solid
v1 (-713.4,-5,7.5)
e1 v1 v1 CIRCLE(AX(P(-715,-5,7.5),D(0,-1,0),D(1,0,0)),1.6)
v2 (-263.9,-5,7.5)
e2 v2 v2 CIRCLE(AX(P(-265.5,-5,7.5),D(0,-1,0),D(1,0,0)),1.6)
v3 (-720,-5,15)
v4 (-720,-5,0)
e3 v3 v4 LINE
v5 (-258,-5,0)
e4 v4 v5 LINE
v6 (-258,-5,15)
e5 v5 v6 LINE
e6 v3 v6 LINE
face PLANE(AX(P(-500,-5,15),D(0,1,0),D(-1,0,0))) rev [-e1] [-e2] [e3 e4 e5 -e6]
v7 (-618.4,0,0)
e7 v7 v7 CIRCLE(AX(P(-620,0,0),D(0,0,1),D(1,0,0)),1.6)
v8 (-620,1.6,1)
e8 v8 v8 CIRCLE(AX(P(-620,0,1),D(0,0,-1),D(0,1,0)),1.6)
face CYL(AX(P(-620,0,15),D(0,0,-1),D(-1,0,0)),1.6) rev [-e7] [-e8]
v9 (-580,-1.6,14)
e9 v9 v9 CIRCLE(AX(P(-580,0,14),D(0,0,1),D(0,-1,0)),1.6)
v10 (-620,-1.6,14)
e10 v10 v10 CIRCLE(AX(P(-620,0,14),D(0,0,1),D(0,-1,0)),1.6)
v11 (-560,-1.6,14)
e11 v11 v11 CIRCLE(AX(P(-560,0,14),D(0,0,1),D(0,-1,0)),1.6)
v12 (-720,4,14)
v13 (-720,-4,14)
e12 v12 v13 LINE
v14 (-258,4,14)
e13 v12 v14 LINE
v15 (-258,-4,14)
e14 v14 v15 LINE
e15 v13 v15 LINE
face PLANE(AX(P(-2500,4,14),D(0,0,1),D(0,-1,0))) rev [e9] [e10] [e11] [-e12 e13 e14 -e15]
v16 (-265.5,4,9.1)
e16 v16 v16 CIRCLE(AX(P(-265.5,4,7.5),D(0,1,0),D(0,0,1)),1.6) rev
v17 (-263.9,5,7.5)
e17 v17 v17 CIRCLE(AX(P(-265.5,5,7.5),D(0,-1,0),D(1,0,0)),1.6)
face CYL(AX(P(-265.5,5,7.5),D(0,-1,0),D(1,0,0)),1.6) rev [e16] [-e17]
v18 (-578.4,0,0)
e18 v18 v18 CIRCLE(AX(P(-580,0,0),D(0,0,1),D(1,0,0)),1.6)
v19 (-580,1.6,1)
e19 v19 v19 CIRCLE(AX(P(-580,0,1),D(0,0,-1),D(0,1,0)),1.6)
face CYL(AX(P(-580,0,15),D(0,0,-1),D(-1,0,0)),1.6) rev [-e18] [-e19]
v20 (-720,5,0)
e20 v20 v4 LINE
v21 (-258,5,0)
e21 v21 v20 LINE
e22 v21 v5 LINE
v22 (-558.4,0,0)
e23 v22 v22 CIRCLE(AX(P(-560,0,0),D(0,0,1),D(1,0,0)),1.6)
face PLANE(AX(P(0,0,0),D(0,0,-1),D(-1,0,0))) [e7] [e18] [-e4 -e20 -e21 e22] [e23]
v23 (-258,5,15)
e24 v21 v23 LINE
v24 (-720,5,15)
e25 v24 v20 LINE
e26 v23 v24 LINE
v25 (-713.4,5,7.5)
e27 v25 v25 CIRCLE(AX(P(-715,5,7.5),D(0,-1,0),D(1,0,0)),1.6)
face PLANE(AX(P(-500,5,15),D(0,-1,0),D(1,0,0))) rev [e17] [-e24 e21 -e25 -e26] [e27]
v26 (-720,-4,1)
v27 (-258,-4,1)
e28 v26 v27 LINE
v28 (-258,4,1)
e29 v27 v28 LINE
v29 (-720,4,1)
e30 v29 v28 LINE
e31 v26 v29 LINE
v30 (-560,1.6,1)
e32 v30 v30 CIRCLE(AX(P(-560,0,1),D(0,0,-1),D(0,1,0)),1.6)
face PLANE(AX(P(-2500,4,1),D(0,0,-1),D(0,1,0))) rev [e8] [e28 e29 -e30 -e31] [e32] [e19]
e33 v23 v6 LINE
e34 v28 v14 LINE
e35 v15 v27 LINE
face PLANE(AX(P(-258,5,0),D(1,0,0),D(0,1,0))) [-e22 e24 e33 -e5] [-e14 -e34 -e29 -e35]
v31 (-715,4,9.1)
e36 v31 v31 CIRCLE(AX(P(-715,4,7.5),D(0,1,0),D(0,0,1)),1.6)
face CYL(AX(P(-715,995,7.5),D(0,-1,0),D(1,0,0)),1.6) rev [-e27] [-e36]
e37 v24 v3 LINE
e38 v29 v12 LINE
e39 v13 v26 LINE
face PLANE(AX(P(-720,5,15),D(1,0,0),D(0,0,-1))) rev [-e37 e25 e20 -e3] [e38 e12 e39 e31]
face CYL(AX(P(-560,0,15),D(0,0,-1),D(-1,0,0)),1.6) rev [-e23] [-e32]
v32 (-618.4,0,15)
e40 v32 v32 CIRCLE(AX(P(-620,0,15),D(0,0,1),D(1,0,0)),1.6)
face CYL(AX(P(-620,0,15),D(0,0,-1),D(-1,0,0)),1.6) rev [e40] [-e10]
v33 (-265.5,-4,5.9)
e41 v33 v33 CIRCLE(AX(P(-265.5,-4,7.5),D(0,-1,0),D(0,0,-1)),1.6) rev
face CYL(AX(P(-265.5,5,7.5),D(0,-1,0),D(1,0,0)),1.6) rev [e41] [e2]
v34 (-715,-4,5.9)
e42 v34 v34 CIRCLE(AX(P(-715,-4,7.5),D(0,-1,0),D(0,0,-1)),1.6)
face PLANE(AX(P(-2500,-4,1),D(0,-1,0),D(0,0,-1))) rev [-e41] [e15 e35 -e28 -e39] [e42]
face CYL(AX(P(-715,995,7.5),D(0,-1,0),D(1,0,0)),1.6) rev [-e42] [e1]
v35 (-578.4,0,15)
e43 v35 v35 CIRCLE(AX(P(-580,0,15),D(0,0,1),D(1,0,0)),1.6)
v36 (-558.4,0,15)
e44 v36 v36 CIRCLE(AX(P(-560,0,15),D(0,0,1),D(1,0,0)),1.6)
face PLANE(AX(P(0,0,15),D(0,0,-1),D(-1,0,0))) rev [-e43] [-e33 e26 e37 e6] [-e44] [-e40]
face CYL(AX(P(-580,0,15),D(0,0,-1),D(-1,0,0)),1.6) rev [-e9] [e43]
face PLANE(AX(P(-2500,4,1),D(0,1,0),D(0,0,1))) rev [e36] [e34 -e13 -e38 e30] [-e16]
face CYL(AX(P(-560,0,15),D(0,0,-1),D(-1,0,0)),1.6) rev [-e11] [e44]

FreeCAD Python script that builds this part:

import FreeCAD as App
import Part
import Sketcher
from FreeCAD import Vector
Q = App.Units.Quantity


def add_polygon(sketch, points):
    """Adds a closed chain of lines whose ends are joined by coincident constraints."""
    first, n = sketch.GeometryCount, len(points)
    for a, b in zip(points, points[1:] + points[:1]):
        sketch.addGeometry(Part.LineSegment(App.Vector(*a, 0), App.Vector(*b, 0)), False)
    for i in range(n):
        sketch.addConstraint(Sketcher.Constraint("Coincident", first + i, 2, first + (i + 1) % n, 1))

doc = App.newDocument("Part")
body = doc.addObject("PartDesign::Body", "Body")

# Sketch on XY plane
sketch1 = body.newObject("Sketcher::SketchObject", "Sketch")
sketch1.AttachmentSupport = (doc.getObject("XY_Plane"), [""])
sketch1.MapMode = "FlatFace"
add_polygon(sketch1, [(-720, 5), (-720, -5), (-500, -5), (-500, 5)])  # lines 0-3
sketch1.addGeometry(Part.Circle(Vector(-620, 0, 0), Vector(0, 0, 1), 1.6), False)  # 4
sketch1.addGeometry(Part.Circle(Vector(-580, 0, 0), Vector(0, 0, 1), 1.6), False)  # 5
sketch1.addGeometry(Part.Circle(Vector(-560, 0, 0), Vector(0, 0, 1), 1.6), False)  # 6
sketch1.addConstraint(Sketcher.Constraint("Vertical", 0))
sketch1.addConstraint(Sketcher.Constraint("Horizontal", 1))
sketch1.addConstraint(Sketcher.Constraint("Vertical", 2))
sketch1.addConstraint(Sketcher.Constraint("Horizontal", 3))
sketch1.addConstraint(Sketcher.Constraint("Equal", 4, 5))
sketch1.addConstraint(Sketcher.Constraint("Equal", 5, 6))
sketch1.addConstraint(Sketcher.Constraint("PointOnObject", 4, 3, -1))
sketch1.addConstraint(Sketcher.Constraint("PointOnObject", 5, 3, -1))
sketch1.addConstraint(Sketcher.Constraint("PointOnObject", 6, 3, -1))
sketch1.addConstraint(Sketcher.Constraint("Diameter", 4, Q("3.2 mm")))
sketch1.addConstraint(Sketcher.Constraint("DistanceX", 1, 1, 1, 2, Q("220 mm")))
sketch1.addConstraint(Sketcher.Constraint("DistanceY", 0, 2, 0, 1, Q("10 mm")))
sketch1.addConstraint(Sketcher.Constraint("DistanceX", 4, 3, -1, 1, Q("620 mm")))
sketch1.addConstraint(Sketcher.Constraint("DistanceX", 5, 3, -1, 1, Q("580 mm")))
sketch1.addConstraint(Sketcher.Constraint("DistanceX", 6, 3, -1, 1, Q("560 mm")))
sketch1.addConstraint(Sketcher.Constraint("DistanceX", 0, 2, -1, 1, Q("720 mm")))
sketch1.addConstraint(Sketcher.Constraint("DistanceY", 0, 2, -1, 1, Q("5 mm")))
pad1 = body.newObject("PartDesign::Pad", "Pad")
pad1.Profile = sketch1
pad1.Length = 15

# Sketch on YZ plane
sketch2 = body.newObject("Sketcher::SketchObject", "Sketch001")
sketch2.AttachmentSupport = (doc.getObject("YZ_Plane"), [""])
sketch2.MapMode = "FlatFace"
sketch2.AttachmentOffset = App.Placement(Vector(0, 0, -500), App.Rotation())
add_polygon(sketch2, [(4, 14), (-4, 14), (-4, 1), (4, 1)])  # lines 0-3
sketch2.addConstraint(Sketcher.Constraint("Horizontal", 0))
sketch2.addConstraint(Sketcher.Constraint("Vertical", 1))
sketch2.addConstraint(Sketcher.Constraint("Horizontal", 2))
sketch2.addConstraint(Sketcher.Constraint("Vertical", 3))
sketch2.addConstraint(Sketcher.Constraint("DistanceX", 0, 2, 0, 1, Q("8 mm")))
sketch2.addConstraint(Sketcher.Constraint("DistanceY", 1, 2, 1, 1, Q("13 mm")))
sketch2.addConstraint(Sketcher.Constraint("DistanceX", 0, 2, -1, 1, Q("4 mm")))
sketch2.addConstraint(Sketcher.Constraint("DistanceY", -1, 1, 0, 2, Q("14 mm")))
pocket1 = body.newObject("PartDesign::Pocket", "Pocket")
pocket1.Profile = sketch2
pocket1.Length = 2000

# Sketch on XZ plane
sketch3 = body.newObject("Sketcher::SketchObject", "Sketch002")
sketch3.AttachmentSupport = (doc.getObject("XZ_Plane"), [""])
sketch3.MapMode = "FlatFace"
sketch3.AttachmentOffset = App.Placement(Vector(0, 0, 5), App.Rotation())
sketch3.addGeometry(Part.Circle(Vector(-715, 7.5, 0), Vector(0, 0, 1), 1.6), False)
sketch3.addConstraint(Sketcher.Constraint("Diameter", 0, Q("3.2 mm")))
sketch3.addConstraint(Sketcher.Constraint("DistanceX", 0, 3, -1, 1, Q("715 mm")))
sketch3.addConstraint(Sketcher.Constraint("DistanceY", -1, 1, 0, 3, Q("7.5 mm")))
pocket2 = body.newObject("PartDesign::Pocket", "Pocket001")
pocket2.Profile = sketch3
pocket2.Length = 1000

# Sketch on XZ plane
sketch4 = body.newObject("Sketcher::SketchObject", "Sketch003")
sketch4.AttachmentSupport = (doc.getObject("XZ_Plane"), [""])
sketch4.MapMode = "FlatFace"
sketch4.AttachmentOffset = App.Placement(Vector(0, 0, 5), App.Rotation())
add_polygon(sketch4, [(-500, 15), (-500, 0), (-258, 0), (-258, 15)])  # lines 0-3
sketch4.addGeometry(Part.Circle(Vector(-265.5, 7.5, 0), Vector(0, 0, 1), 1.6), False)  # 4
sketch4.addConstraint(Sketcher.Constraint("Vertical", 0))
sketch4.addConstraint(Sketcher.Constraint("Horizontal", 1))
sketch4.addConstraint(Sketcher.Constraint("Vertical", 2))
sketch4.addConstraint(Sketcher.Constraint("Horizontal", 3))
sketch4.addConstraint(Sketcher.Constraint("PointOnObject", 0, 2, -1))
sketch4.addConstraint(Sketcher.Constraint("Diameter", 4, Q("3.2 mm")))
sketch4.addConstraint(Sketcher.Constraint("DistanceX", 1, 1, 1, 2, Q("242 mm")))
sketch4.addConstraint(Sketcher.Constraint("DistanceY", 0, 2, 0, 1, Q("15 mm")))
sketch4.addConstraint(Sketcher.Constraint("DistanceX", 0, 2, -1, 1, Q("500 mm")))
sketch4.addConstraint(Sketcher.Constraint("DistanceX", 4, 3, -1, 1, Q("265.5 mm")))
sketch4.addConstraint(Sketcher.Constraint("DistanceY", -1, 1, 4, 3, Q("7.5 mm")))
pad2 = body.newObject("PartDesign::Pad", "Pad001")
pad2.Profile = sketch4
pad2.Length = 10
pad2.Reversed = True

# Sketch on YZ plane
sketch5 = body.newObject("Sketcher::SketchObject", "Sketch004")
sketch5.AttachmentSupport = (doc.getObject("YZ_Plane"), [""])
sketch5.MapMode = "FlatFace"
sketch5.AttachmentOffset = App.Placement(Vector(0, 0, -720), App.Rotation())
add_polygon(sketch5, [(4, 1), (-4, 1), (-4, 14), (4, 14)])  # lines 0-3
sketch5.addConstraint(Sketcher.Constraint("Horizontal", 0))
sketch5.addConstraint(Sketcher.Constraint("Vertical", 1))
sketch5.addConstraint(Sketcher.Constraint("Horizontal", 2))
sketch5.addConstraint(Sketcher.Constraint("Vertical", 3))
sketch5.addConstraint(Sketcher.Constraint("DistanceX", 0, 2, 0, 1, Q("8 mm")))
sketch5.addConstraint(Sketcher.Constraint("DistanceY", 1, 1, 1, 2, Q("13 mm")))
sketch5.addConstraint(Sketcher.Constraint("DistanceX", 0, 2, -1, 1, Q("4 mm")))
sketch5.addConstraint(Sketcher.Constraint("DistanceY", -1, 1, 0, 2, Q("1 mm")))
pocket3 = body.newObject("PartDesign::Pocket", "Pocket002")
pocket3.Profile = sketch5
pocket3.Length = 1000
pocket3.Reversed = True

doc.recompute()
